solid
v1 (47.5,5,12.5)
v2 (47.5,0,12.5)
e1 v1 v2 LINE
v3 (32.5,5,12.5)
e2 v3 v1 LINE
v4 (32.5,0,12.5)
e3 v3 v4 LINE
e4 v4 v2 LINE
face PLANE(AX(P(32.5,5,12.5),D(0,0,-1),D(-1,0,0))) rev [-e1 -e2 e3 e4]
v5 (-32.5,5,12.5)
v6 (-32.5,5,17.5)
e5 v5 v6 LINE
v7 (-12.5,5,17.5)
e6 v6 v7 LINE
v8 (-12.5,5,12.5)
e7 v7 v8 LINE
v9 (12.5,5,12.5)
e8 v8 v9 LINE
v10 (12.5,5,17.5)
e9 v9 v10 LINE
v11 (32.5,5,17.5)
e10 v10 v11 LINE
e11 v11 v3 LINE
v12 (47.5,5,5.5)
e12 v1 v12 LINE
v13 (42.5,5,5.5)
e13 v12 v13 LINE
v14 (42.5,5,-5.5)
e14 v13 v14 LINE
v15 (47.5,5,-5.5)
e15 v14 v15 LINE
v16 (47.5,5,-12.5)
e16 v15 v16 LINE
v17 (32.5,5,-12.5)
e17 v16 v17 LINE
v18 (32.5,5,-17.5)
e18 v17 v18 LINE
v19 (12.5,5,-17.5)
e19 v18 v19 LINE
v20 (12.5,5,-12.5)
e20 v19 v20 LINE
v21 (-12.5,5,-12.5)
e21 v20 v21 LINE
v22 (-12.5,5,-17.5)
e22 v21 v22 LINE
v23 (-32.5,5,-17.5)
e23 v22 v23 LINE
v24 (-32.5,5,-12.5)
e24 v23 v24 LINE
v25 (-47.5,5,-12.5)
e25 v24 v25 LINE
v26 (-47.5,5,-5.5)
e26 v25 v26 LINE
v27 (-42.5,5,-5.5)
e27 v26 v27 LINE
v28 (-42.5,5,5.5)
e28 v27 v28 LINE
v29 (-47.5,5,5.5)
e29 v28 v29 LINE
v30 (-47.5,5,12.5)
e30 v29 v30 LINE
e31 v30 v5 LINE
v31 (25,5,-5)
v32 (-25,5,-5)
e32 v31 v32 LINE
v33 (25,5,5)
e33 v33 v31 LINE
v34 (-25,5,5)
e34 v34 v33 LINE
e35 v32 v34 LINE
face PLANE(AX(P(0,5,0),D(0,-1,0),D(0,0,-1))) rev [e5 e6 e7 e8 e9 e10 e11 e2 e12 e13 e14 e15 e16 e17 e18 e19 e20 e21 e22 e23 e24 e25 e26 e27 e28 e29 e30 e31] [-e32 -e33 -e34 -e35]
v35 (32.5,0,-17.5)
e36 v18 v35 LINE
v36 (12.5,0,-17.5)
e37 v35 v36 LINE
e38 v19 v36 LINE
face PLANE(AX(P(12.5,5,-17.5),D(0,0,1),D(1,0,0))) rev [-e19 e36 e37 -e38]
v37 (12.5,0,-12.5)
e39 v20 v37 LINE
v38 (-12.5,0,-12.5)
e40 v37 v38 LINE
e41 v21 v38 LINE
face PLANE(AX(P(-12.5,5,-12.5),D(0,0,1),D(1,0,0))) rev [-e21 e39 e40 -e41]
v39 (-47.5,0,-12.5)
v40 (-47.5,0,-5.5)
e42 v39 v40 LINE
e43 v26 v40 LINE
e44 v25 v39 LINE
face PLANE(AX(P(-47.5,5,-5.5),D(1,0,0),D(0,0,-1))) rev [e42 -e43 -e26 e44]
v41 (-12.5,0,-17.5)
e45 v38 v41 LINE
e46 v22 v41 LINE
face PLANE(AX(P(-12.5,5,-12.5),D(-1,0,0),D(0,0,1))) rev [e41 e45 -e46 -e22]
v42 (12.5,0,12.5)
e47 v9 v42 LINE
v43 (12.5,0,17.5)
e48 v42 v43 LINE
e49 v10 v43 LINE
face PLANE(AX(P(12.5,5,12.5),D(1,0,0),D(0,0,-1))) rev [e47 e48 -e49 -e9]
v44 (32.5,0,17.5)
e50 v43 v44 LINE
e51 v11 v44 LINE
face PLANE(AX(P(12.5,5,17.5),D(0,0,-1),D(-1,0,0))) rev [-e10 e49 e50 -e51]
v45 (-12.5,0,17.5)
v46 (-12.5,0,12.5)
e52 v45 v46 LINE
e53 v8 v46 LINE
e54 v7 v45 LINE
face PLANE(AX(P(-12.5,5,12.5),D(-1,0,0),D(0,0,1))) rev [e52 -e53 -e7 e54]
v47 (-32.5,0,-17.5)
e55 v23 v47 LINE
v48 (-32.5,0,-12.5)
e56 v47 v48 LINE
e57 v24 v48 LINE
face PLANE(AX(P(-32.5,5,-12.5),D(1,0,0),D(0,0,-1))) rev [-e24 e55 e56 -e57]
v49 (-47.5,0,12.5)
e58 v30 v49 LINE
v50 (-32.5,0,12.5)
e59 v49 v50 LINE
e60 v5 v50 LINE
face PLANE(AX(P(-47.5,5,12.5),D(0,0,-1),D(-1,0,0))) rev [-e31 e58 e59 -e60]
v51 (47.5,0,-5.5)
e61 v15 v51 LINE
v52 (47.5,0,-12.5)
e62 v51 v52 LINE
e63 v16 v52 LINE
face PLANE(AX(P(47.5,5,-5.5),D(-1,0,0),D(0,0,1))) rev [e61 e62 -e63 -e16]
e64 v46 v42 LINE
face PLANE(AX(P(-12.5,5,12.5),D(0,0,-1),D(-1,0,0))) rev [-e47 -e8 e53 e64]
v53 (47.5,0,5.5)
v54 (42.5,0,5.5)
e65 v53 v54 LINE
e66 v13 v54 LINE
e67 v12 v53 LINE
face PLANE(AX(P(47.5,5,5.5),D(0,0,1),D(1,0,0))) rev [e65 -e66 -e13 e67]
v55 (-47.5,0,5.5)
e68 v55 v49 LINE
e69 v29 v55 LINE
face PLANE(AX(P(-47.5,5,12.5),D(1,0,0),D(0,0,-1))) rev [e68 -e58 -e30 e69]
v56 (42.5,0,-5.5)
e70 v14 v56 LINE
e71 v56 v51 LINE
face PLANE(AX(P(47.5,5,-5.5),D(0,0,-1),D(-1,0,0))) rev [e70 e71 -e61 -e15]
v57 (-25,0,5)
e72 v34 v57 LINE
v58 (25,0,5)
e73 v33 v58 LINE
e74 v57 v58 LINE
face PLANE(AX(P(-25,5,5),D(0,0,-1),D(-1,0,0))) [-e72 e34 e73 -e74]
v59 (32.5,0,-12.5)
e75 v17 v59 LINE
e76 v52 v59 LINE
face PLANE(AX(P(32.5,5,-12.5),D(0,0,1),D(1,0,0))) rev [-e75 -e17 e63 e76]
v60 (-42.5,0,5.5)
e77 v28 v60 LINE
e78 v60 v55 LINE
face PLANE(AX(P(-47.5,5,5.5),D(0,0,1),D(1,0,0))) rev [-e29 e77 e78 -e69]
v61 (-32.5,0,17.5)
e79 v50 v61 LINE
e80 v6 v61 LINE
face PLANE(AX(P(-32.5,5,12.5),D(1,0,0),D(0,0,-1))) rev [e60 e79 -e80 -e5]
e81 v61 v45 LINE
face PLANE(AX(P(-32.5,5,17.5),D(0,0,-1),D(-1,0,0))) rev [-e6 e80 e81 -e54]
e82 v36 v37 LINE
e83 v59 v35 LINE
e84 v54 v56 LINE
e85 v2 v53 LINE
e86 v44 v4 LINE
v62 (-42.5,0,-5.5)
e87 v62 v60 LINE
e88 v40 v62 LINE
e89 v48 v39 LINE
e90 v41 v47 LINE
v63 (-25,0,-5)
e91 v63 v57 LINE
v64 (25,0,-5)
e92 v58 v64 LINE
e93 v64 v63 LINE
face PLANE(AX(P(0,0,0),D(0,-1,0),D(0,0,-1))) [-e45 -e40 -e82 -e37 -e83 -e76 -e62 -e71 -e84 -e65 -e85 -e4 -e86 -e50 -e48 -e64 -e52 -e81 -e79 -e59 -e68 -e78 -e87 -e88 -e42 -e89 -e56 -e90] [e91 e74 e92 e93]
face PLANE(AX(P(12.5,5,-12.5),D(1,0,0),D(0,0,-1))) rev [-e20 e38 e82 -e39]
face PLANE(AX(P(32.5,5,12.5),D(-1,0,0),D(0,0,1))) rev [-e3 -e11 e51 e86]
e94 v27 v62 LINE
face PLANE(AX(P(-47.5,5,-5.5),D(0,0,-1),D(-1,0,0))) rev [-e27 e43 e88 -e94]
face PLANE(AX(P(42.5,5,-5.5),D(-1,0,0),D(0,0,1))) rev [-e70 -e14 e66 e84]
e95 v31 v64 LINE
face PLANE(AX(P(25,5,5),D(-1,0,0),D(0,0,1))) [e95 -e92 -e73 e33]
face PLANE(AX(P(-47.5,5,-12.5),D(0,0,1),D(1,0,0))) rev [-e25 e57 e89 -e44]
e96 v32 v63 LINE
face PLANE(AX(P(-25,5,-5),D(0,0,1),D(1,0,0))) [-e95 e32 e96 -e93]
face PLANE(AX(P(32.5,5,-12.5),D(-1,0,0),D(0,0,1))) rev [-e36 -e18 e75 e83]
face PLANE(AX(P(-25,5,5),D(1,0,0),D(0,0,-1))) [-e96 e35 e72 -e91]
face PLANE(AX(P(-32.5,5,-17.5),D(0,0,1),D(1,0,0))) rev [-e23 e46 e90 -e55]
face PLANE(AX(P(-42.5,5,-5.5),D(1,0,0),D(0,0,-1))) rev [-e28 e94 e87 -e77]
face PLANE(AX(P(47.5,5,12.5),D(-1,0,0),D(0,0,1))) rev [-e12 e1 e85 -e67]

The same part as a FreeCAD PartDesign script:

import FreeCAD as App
import Part
import Sketcher

doc = App.newDocument("Part")
body = doc.addObject("PartDesign::Body", "Body")

# Sketch on XZ plane
sketch1 = body.newObject("Sketcher::SketchObject", "Sketch")
sketch1.AttachmentSupport = (doc.getObject("XZ_Plane"), [""])
sketch1.MapMode = "FlatFace"
sketch1.addGeometry([
    Part.LineSegment(App.Vector(12, -12, 0), App.Vector(-12, -12, 0)),  # 0
    Part.LineSegment(App.Vector(-12, -12, 0), App.Vector(-12, -18, 0)),  # 1
    Part.LineSegment(App.Vector(-12, -18, 0), App.Vector(-32, -18, 0)),  # 2
    Part.LineSegment(App.Vector(-32, -18, 0), App.Vector(-32, -12, 0)),  # 3
    Part.LineSegment(App.Vector(-32, -12, 0), App.Vector(-48, -12, 0)),  # 4
    Part.LineSegment(App.Vector(-48, -12, 0), App.Vector(-48, -6, 0)),  # 5
    Part.LineSegment(App.Vector(-48, -6, 0), App.Vector(-42, -6, 0)),  # 6
    Part.LineSegment(App.Vector(-42, -6, 0), App.Vector(-42, 6, 0)),  # 7
    Part.LineSegment(App.Vector(-42, 6, 0), App.Vector(-48, 6, 0)),  # 8
    Part.LineSegment(App.Vector(-48, 6, 0), App.Vector(-48, 12, 0)),  # 9
    Part.LineSegment(App.Vector(-48, 12, 0), App.Vector(-32, 12, 0)),  # 10
    Part.LineSegment(App.Vector(-32, 12, 0), App.Vector(-32, 18, 0)),  # 11
    Part.LineSegment(App.Vector(-32, 18, 0), App.Vector(-12, 18, 0)),  # 12
    Part.LineSegment(App.Vector(-12, 18, 0), App.Vector(-12, 12, 0)),  # 13
    Part.LineSegment(App.Vector(-12, 12, 0), App.Vector(12, 12, 0)),  # 14
    Part.LineSegment(App.Vector(12, 12, 0), App.Vector(12, 18, 0)),  # 15
    Part.LineSegment(App.Vector(12, 18, 0), App.Vector(32, 18, 0)),  # 16
    Part.LineSegment(App.Vector(32, 18, 0), App.Vector(32, 12, 0)),  # 17
    Part.LineSegment(App.Vector(32, 12, 0), App.Vector(48, 12, 0)),  # 18
    Part.LineSegment(App.Vector(48, 12, 0), App.Vector(48, 6, 0)),  # 19
    Part.LineSegment(App.Vector(48, 6, 0), App.Vector(42, 6, 0)),  # 20
    Part.LineSegment(App.Vector(42, 6, 0), App.Vector(42, -6, 0)),  # 21
    Part.LineSegment(App.Vector(42, -6, 0), App.Vector(48, -6, 0)),  # 22
    Part.LineSegment(App.Vector(48, -6, 0), App.Vector(48, -12, 0)),  # 23
    Part.LineSegment(App.Vector(48, -12, 0), App.Vector(32, -12, 0)),  # 24
    Part.LineSegment(App.Vector(32, -12, 0), App.Vector(32, -18, 0)),  # 25
    Part.LineSegment(App.Vector(32, -18, 0), App.Vector(12, -18, 0)),  # 26
    Part.LineSegment(App.Vector(12, -18, 0), App.Vector(12, -12, 0)),  # 27
    Part.LineSegment(App.Vector(-25, 5, 0), App.Vector(-25, -5, 0)),  # 28
    Part.LineSegment(App.Vector(-25, -5, 0), App.Vector(25, -5, 0)),  # 29
    Part.LineSegment(App.Vector(25, -5, 0), App.Vector(25, 5, 0)),  # 30
    Part.LineSegment(App.Vector(25, 5, 0), App.Vector(-25, 5, 0)),  # 31
], False)
sketch1.addConstraint([
    Sketcher.Constraint("Coincident", 0, 2, 1, 1),
    Sketcher.Constraint("Coincident", 1, 2, 2, 1),
    Sketcher.Constraint("Coincident", 2, 2, 3, 1),
    Sketcher.Constraint("Coincident", 3, 2, 4, 1),
    Sketcher.Constraint("Coincident", 4, 2, 5, 1),
    Sketcher.Constraint("Coincident", 5, 2, 6, 1),
    Sketcher.Constraint("Coincident", 6, 2, 7, 1),
    Sketcher.Constraint("Coincident", 7, 2, 8, 1),
    Sketcher.Constraint("Coincident", 8, 2, 9, 1),
    Sketcher.Constraint("Coincident", 9, 2, 10, 1),
    Sketcher.Constraint("Coincident", 10, 2, 11, 1),
    Sketcher.Constraint("Coincident", 11, 2, 12, 1),
    Sketcher.Constraint("Coincident", 12, 2, 13, 1),
    Sketcher.Constraint("Coincident", 13, 2, 14, 1),
    Sketcher.Constraint("Coincident", 14, 2, 15, 1),
    Sketcher.Constraint("Coincident", 15, 2, 16, 1),
    Sketcher.Constraint("Coincident", 16, 2, 17, 1),
    Sketcher.Constraint("Coincident", 17, 2, 18, 1),
    Sketcher.Constraint("Coincident", 18, 2, 19, 1),
    Sketcher.Constraint("Coincident", 19, 2, 20, 1),
    Sketcher.Constraint("Coincident", 20, 2, 21, 1),
    Sketcher.Constraint("Coincident", 21, 2, 22, 1),
    Sketcher.Constraint("Coincident", 22, 2, 23, 1),
    Sketcher.Constraint("Coincident", 23, 2, 24, 1),
    Sketcher.Constraint("Coincident", 24, 2, 25, 1),
    Sketcher.Constraint("Coincident", 25, 2, 26, 1),
    Sketcher.Constraint("Coincident", 26, 2, 27, 1),
    Sketcher.Constraint("Coincident", 27, 2, 0, 1),
    Sketcher.Constraint("Coincident", 28, 2, 29, 1),
    Sketcher.Constraint("Coincident", 29, 2, 30, 1),
    Sketcher.Constraint("Coincident", 30, 2, 31, 1),
    Sketcher.Constraint("Coincident", 31, 2, 28, 1),
    Sketcher.Constraint("Horizontal", 0),
    Sketcher.Constraint("Vertical", 1),
    Sketcher.Constraint("Horizontal", 2),
    Sketcher.Constraint("Vertical", 3),
    Sketcher.Constraint("Horizontal", 4),
    Sketcher.Constraint("Vertical", 5),
    Sketcher.Constraint("Horizontal", 6),
    Sketcher.Constraint("Vertical", 7),
    Sketcher.Constraint("Horizontal", 8),
    Sketcher.Constraint("Vertical", 9),
    Sketcher.Constraint("Horizontal", 10),
    Sketcher.Constraint("Vertical", 11),
    Sketcher.Constraint("Horizontal", 12),
    Sketcher.Constraint("Vertical", 13),
    Sketcher.Constraint("Horizontal", 14),
    Sketcher.Constraint("Vertical", 15),
    Sketcher.Constraint("Horizontal", 16),
    Sketcher.Constraint("Vertical", 17),
    Sketcher.Constraint("Horizontal", 18),
    Sketcher.Constraint("Vertical", 19),
    Sketcher.Constraint("Horizontal", 20),
    Sketcher.Constraint("Vertical", 21),
    Sketcher.Constraint("Horizontal", 22),
    Sketcher.Constraint("Vertical", 23),
    Sketcher.Constraint("Horizontal", 24),
    Sketcher.Constraint("Vertical", 25),
    Sketcher.Constraint("Horizontal", 26),
    Sketcher.Constraint("Vertical", 27),
    Sketcher.Constraint("Vertical", 28),
    Sketcher.Constraint("Horizontal", 29),
    Sketcher.Constraint("Vertical", 30),
    Sketcher.Constraint("Horizontal", 31),
    Sketcher.Constraint("Symmetric", 0, 2, 14, 2, -1, 1),
    Sketcher.Constraint("Symmetric", 2, 2, 16, 2, -1, 1),
    Sketcher.Constraint("Symmetric", 4, 2, 18, 2, -1, 1),
    Sketcher.Constraint("Symmetric", 6, 2, 20, 2, -1, 1),
    Sketcher.Constraint("Symmetric", 8, 2, 22, 2, -1, 1),
    Sketcher.Constraint("Symmetric", 10, 2, 24, 2, -1, 1),
    Sketcher.Constraint("Symmetric", 12, 2, 26, 2, -1, 1),
    Sketcher.Constraint("Symmetric", 28, 2, 30, 2, -1, 1),
    Sketcher.Constraint("Symmetric", 12, 2, 15, 2, -2),
    Sketcher.Constraint("Symmetric", 10, 2, 17, 2, -2),
    Sketcher.Constraint("Symmetric", 8, 2, 19, 2, -2),
    Sketcher.Constraint("Horizontal", 0, 2, 3, 2),
    Sketcher.Constraint("Equal", 22, 1),
    Sketcher.Constraint("DistanceX", 0, 2, 0, 1, 25.0),
    Sketcher.Constraint("DistanceX", 2, 2, 2, 1, 20.0),
    Sketcher.Constraint("DistanceX", 4, 2, 4, 1, 15.0),
    Sketcher.Constraint("DistanceX", 6, 1, 6, 2, 5.0),
    Sketcher.Constraint("DistanceX", 29, 1, 29, 2, 50.0),
    Sketcher.Constraint("DistanceY", 5, 1, 5, 2, 7.0),
    Sketcher.Constraint("DistanceY", 7, 1, 7, 2, 11.0),
    Sketcher.Constraint("DistanceY", 28, 2, 28, 1, 10.0),
])
pad1 = body.newObject("PartDesign::Pad", "Pad")
pad1.Profile = sketch1
pad1.Length = 5
pad1.Reversed = True

doc.recompute()
